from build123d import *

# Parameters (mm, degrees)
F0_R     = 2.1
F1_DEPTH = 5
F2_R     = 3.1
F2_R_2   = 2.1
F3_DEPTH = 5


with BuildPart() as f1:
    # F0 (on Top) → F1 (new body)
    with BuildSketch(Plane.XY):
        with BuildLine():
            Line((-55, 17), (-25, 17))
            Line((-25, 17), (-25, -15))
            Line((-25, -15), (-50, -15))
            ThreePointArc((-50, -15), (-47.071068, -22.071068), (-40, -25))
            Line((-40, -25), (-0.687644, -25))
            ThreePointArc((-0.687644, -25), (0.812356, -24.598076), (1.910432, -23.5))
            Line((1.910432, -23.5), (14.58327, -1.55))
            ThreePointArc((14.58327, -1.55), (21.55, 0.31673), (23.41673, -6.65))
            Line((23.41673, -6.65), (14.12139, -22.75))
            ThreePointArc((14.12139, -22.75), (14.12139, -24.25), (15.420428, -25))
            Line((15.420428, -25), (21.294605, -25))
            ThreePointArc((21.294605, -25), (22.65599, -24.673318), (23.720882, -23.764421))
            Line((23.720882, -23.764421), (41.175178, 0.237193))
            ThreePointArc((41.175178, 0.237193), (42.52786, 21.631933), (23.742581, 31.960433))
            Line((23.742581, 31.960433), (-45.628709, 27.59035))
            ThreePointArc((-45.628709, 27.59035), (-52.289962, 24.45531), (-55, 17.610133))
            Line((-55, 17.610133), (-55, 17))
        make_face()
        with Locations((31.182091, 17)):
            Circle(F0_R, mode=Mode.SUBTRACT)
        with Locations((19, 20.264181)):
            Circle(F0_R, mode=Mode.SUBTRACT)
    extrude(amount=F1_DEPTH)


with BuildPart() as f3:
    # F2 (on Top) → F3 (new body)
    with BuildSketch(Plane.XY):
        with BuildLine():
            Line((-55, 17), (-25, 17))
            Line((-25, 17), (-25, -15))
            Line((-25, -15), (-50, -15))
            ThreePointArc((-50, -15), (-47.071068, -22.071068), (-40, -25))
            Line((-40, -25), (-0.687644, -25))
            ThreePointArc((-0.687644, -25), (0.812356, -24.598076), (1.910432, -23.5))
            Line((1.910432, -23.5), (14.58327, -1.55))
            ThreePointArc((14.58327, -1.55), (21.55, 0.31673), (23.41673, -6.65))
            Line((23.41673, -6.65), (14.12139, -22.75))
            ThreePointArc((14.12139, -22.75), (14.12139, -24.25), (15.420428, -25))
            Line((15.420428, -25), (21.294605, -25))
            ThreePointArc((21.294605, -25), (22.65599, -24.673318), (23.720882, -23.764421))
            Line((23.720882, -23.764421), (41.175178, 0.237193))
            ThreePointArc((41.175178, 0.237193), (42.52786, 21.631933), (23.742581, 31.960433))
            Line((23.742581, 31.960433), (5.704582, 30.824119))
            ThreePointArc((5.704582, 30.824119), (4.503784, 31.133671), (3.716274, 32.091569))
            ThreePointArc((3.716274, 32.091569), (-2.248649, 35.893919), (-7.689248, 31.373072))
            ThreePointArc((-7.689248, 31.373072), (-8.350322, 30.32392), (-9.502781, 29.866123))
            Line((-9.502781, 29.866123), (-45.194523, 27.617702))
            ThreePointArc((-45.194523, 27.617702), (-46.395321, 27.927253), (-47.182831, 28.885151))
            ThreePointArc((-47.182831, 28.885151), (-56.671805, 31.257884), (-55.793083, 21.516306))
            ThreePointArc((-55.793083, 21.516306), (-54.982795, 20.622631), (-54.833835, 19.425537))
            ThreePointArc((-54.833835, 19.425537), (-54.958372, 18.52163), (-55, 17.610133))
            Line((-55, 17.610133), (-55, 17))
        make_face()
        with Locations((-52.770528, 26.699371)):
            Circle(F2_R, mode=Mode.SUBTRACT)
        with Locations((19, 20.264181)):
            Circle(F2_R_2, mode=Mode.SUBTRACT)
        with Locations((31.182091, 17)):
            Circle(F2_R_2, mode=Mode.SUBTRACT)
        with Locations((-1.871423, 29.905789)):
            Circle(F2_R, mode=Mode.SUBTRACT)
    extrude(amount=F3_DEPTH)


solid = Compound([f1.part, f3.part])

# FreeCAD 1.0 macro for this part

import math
import FreeCAD as App
import Part
import Sketcher

V = App.Vector
Q = App.Units.Quantity

doc = App.newDocument("Part")
body = doc.addObject("PartDesign::Body", "Body")

sketch1 = doc.addObject("Sketcher::SketchObject", "Sketch")
body.addObject(sketch1)
sketch1.AttachmentSupport = (doc.XY_Plane, [""])
sketch1.MapMode = "FlatFace"
sketch1.addGeometry(Part.LineSegment(V(-55, 17, 0), V(-25, 17, 0)), False)
sketch1.addGeometry(Part.LineSegment(V(-25, 17, 0), V(-25, -15, 0)), False)
sketch1.addGeometry(Part.LineSegment(V(-25, -15, 0), V(-50, -15, 0)), False)
sketch1.addGeometry(Part.ArcOfCircle(Part.Circle(V(-40.000001, -15.000001, 0), V(0, 0, 1), 9.999999), math.radians(179.999996), math.radians(270.000004)), False)
sketch1.addGeometry(Part.LineSegment(V(-40, -25, 0), V(-0.687644, -25, 0)), False)
sketch1.addGeometry(Part.ArcOfCircle(Part.Circle(V(-0.687644, -22, 0), V(0, 0, 1), 3.000001), math.radians(-89.99999), math.radians(-30.000006)), False)
sketch1.addGeometry(Part.LineSegment(V(1.910432, -23.5, 0), V(14.58327, -1.55, 0)), False)
sketch1.addGeometry(Part.ArcOfCircle(Part.Circle(V(19, -4.1, 0), V(0, 0, 1), 5.1), math.radians(-29.999998), math.radians(150.000002)), False)
sketch1.addGeometry(Part.LineSegment(V(23.41673, -6.65, 0), V(14.12139, -22.75, 0)), False)
sketch1.addGeometry(Part.ArcOfCircle(Part.Circle(V(15.420428, -23.5, 0), V(0, 0, 1), 1.5), math.radians(150), math.radians(269.999996)), False)
sketch1.addGeometry(Part.LineSegment(V(15.420428, -25, 0), V(21.294605, -25, 0)), False)
sketch1.addGeometry(Part.ArcOfCircle(Part.Circle(V(21.294603, -21.999996, 0), V(0, 0, 1), 3.000004), math.radians(-89.999971), math.radians(-36.025186)), False)
sketch1.addGeometry(Part.LineSegment(V(23.720882, -23.764421, 0), V(41.175178, 0.237193, 0)), False)
sketch1.addGeometry(Part.ArcOfCircle(Part.Circle(V(25.000001, 12, 0), V(0, 0, 1), 20), math.radians(-36.025153), math.radians(93.604619)), False)
sketch1.addGeometry(Part.LineSegment(V(23.742581, 31.960433, 0), V(-45.628709, 27.59035, 0)), False)
sketch1.addGeometry(Part.ArcOfCircle(Part.Circle(V(-44.999999, 17.610132, 0), V(0, 0, 1), 10.000001), math.radians(93.604622), math.radians(179.999994)), False)
sketch1.addGeometry(Part.LineSegment(V(-55, 17.610133, 0), V(-55, 17, 0)), False)
sketch1.addGeometry(Part.Circle(V(31.182091, 17, 0), V(0, 0, 1), 2.1), False)
sketch1.addGeometry(Part.Circle(V(19, 20.264181, 0), V(0, 0, 1), 2.1), False)
sketch1.addConstraint(Sketcher.Constraint("Coincident", 0, 2, 1, 1))
sketch1.addConstraint(Sketcher.Constraint("Coincident", 1, 2, 2, 1))
sketch1.addConstraint(Sketcher.Constraint("Coincident", 2, 2, 3, 1))
sketch1.addConstraint(Sketcher.Constraint("Tangent", 3, 2, 4, 1))
sketch1.addConstraint(Sketcher.Constraint("Tangent", 4, 2, 5, 1))
sketch1.addConstraint(Sketcher.Constraint("Tangent", 5, 2, 6, 1))
sketch1.addConstraint(Sketcher.Constraint("Tangent", 6, 2, 7, 2))
sketch1.addConstraint(Sketcher.Constraint("Tangent", 7, 1, 8, 1))
sketch1.addConstraint(Sketcher.Constraint("Tangent", 8, 2, 9, 1))
sketch1.addConstraint(Sketcher.Constraint("Tangent", 9, 2, 10, 1))
sketch1.addConstraint(Sketcher.Constraint("Tangent", 10, 2, 11, 1))
sketch1.addConstraint(Sketcher.Constraint("Tangent", 11, 2, 12, 1))
sketch1.addConstraint(Sketcher.Constraint("Tangent", 12, 2, 13, 1))
sketch1.addConstraint(Sketcher.Constraint("Tangent", 13, 2, 14, 1))
sketch1.addConstraint(Sketcher.Constraint("Tangent", 14, 2, 15, 1))
sketch1.addConstraint(Sketcher.Constraint("Tangent", 15, 2, 16, 1))
sketch1.addConstraint(Sketcher.Constraint("Coincident", 16, 2, 0, 1))
sketch1.addConstraint(Sketcher.Constraint("Horizontal", 0))
sketch1.addConstraint(Sketcher.Constraint("Vertical", 1))
sketch1.addConstraint(Sketcher.Constraint("Horizontal", 2))
sketch1.addConstraint(Sketcher.Constraint("Horizontal", 4))
sketch1.addConstraint(Sketcher.Constraint("Horizontal", 10))
sketch1.addConstraint(Sketcher.Constraint("Vertical", 16))
sketch1.addConstraint(Sketcher.Constraint("Equal", 17, 18))
sketch1.addConstraint(Sketcher.Constraint("Parallel", 6, 8))
sketch1.addConstraint(Sketcher.Constraint("Horizontal", 17, 3, 0, 2))
sketch1.addConstraint(Sketcher.Constraint("Horizontal", 3, 3, 1, 2))
sketch1.addConstraint(Sketcher.Constraint("Horizontal", 9, 3, 5, 2))
sketch1.addConstraint(Sketcher.Constraint("Horizontal", 4, 2, 9, 2))
sketch1.addConstraint(Sketcher.Constraint("Vertical", 7, 3, 18, 3))
sketch1.addConstraint(Sketcher.Constraint("Radius", 3, Q("9.999999 mm")))
sketch1.addConstraint(Sketcher.Constraint("Radius", 5, Q("3.000001 mm")))
sketch1.addConstraint(Sketcher.Constraint("Radius", 13, Q("20 mm")))
sketch1.addConstraint(Sketcher.Constraint("Radius", 15, Q("10.000001 mm")))
sketch1.addConstraint(Sketcher.Constraint("Diameter", 17, Q("4.2 mm")))
sketch1.addConstraint(Sketcher.Constraint("Radius", 7, Q("5.1 mm")))
sketch1.addConstraint(Sketcher.Constraint("Radius", 9, Q("1.5 mm")))
sketch1.addConstraint(Sketcher.Constraint("DistanceX", 0, 1, 0, 2, Q("30 mm")))
sketch1.addConstraint(Sketcher.Constraint("DistanceX", 2, 2, 2, 1, Q("25 mm")))
sketch1.addConstraint(Sketcher.Constraint("DistanceY", 1, 2, 1, 1, Q("32 mm")))
sketch1.addConstraint(Sketcher.Constraint("DistanceX", 3, 3, -1, 1, Q("40.000001 mm")))
sketch1.addConstraint(Sketcher.Constraint("DistanceY", 3, 3, -1, 1, Q("15.000001 mm")))
sketch1.addConstraint(Sketcher.Constraint("DistanceX", -1, 1, 7, 3, Q("19 mm")))
sketch1.addConstraint(Sketcher.Constraint("DistanceX", -1, 1, 13, 3, Q("25.000001 mm")))
sketch1.addConstraint(Sketcher.Constraint("DistanceY", -1, 1, 13, 3, Q("12 mm")))
sketch1.addConstraint(Sketcher.Constraint("DistanceY", 7, 3, -1, 1, Q("4.1 mm")))
sketch1.addConstraint(Sketcher.Constraint("Radius", 11, Q("3.000004 mm")))
sketch1.addConstraint(Sketcher.Constraint("Distance", 14, Q("69.508802 mm")))
sketch1.addConstraint(Sketcher.Constraint("DistanceX", 10, 1, 10, 2, Q("5.874177 mm")))
sketch1.addConstraint(Sketcher.Constraint("DistanceX", -1, 1, 17, 3, Q("31.182091 mm")))
sketch1.addConstraint(Sketcher.Constraint("DistanceY", -1, 1, 18, 3, Q("20.264181 mm")))
pad1 = doc.addObject("PartDesign::Pad", "Pad")
body.addObject(pad1)
pad1.Profile = sketch1
pad1.Length = 5
body2 = doc.addObject("PartDesign::Body", "Body001")

sketch2 = doc.addObject("Sketcher::SketchObject", "Sketch001")
body2.addObject(sketch2)
sketch2.AttachmentSupport = (doc.getObject("XY_Plane001"), [""])
sketch2.MapMode = "FlatFace"
sketch2.addGeometry(Part.LineSegment(V(-55, 17, 0), V(-25, 17, 0)), False)
sketch2.addGeometry(Part.LineSegment(V(-25, 17, 0), V(-25, -15, 0)), False)
sketch2.addGeometry(Part.LineSegment(V(-25, -15, 0), V(-50, -15, 0)), False)
sketch2.addGeometry(Part.ArcOfCircle(Part.Circle(V(-40.000001, -15.000001, 0), V(0, 0, 1), 9.999999), math.radians(179.999996), math.radians(270.000004)), False)
sketch2.addGeometry(Part.LineSegment(V(-40, -25, 0), V(-0.687644, -25, 0)), False)
sketch2.addGeometry(Part.ArcOfCircle(Part.Circle(V(-0.687644, -22, 0), V(0, 0, 1), 3.000001), math.radians(-89.99999), math.radians(-30.000006)), False)
sketch2.addGeometry(Part.LineSegment(V(1.910432, -23.5, 0), V(14.58327, -1.55, 0)), False)
sketch2.addGeometry(Part.ArcOfCircle(Part.Circle(V(19, -4.1, 0), V(0, 0, 1), 5.1), math.radians(-29.999998), math.radians(150.000002)), False)
sketch2.addGeometry(Part.LineSegment(V(23.41673, -6.65, 0), V(14.12139, -22.75, 0)), False)
sketch2.addGeometry(Part.ArcOfCircle(Part.Circle(V(15.420428, -23.5, 0), V(0, 0, 1), 1.5), math.radians(150), math.radians(269.999996)), False)
sketch2.addGeometry(Part.LineSegment(V(15.420428, -25, 0), V(21.294605, -25, 0)), False)
sketch2.addGeometry(Part.ArcOfCircle(Part.Circle(V(21.294603, -21.999996, 0), V(0, 0, 1), 3.000004), math.radians(-89.999971), math.radians(-36.025186)), False)
sketch2.addGeometry(Part.LineSegment(V(23.720882, -23.764421, 0), V(41.175178, 0.237193, 0)), False)
sketch2.addGeometry(Part.ArcOfCircle(Part.Circle(V(25.000001, 12, 0), V(0, 0, 1), 20), math.radians(-36.025153), math.radians(93.604619)), False)
sketch2.addGeometry(Part.LineSegment(V(23.742581, 31.960433, 0), V(5.704582, 30.824119, 0)), False)
sketch2.addGeometry(Part.ArcOfCircle(Part.Circle(V(5.578841, 32.820164, 0), V(0, 0, 1), 2.000002), math.radians(-158.635656), math.radians(-86.395417)), False)
sketch2.addGeometry(Part.ArcOfCircle(Part.Circle(V(-1.871424, 29.905789, 0), V(0, 0, 1), 6), math.radians(21.364304), math.radians(165.844926)), False)
sketch2.addGeometry(Part.ArcOfCircle(Part.Circle(V(-9.628524, 31.862167, 0), V(0, 0, 1), 2.000001), math.radians(-86.395365), math.radians(-14.155095)), False)
sketch2.addGeometry(Part.LineSegment(V(-9.502781, 29.866123, 0), V(-45.194523, 27.617702, 0)), False)
sketch2.addGeometry(Part.ArcOfCircle(Part.Circle(V(-45.320266, 29.613745, 0), V(0, 0, 1), 1.999999), math.radians(-158.63568), math.radians(-86.395352)), False)
sketch2.addGeometry(Part.ArcOfCircle(Part.Circle(V(-52.770529, 26.699371, 0), V(0, 0, 1), 6), math.radians(21.364305), math.radians(239.750988)), False)
sketch2.addGeometry(Part.ArcOfCircle(Part.Circle(V(-56.800602, 19.788618, 0), V(0, 0, 1), 2), math.radians(-10.459495), math.radians(59.750954)), False)
sketch2.addGeometry(Part.ArcOfCircle(Part.Circle(V(-44.999981, 17.610132, 0), V(0, 0, 1), 10.000019), math.radians(169.540517), math.radians(179.999994)), False)
sketch2.addGeometry(Part.LineSegment(V(-55, 17.610133, 0), V(-55, 17, 0)), False)
sketch2.addGeometry(Part.Circle(V(31.182091, 17, 0), V(0, 0, 1), 2.1), False)
sketch2.addGeometry(Part.Circle(V(19, 20.264181, 0), V(0, 0, 1), 2.1), False)
sketch2.addGeometry(Part.Circle(V(-52.770528, 26.699371, 0), V(0, 0, 1), 3.1), False)
sketch2.addGeometry(Part.Circle(V(-1.871423, 29.905789, 0), V(0, 0, 1), 3.1), False)
sketch2.addConstraint(Sketcher.Constraint("Coincident", 0, 2, 1, 1))
sketch2.addConstraint(Sketcher.Constraint("Coincident", 1, 2, 2, 1))
sketch2.addConstraint(Sketcher.Constraint("Coincident", 2, 2, 3, 1))
sketch2.addConstraint(Sketcher.Constraint("Tangent", 3, 2, 4, 1))
sketch2.addConstraint(Sketcher.Constraint("Tangent", 4, 2, 5, 1))
sketch2.addConstraint(Sketcher.Constraint("Tangent", 5, 2, 6, 1))
sketch2.addConstraint(Sketcher.Constraint("Tangent", 6, 2, 7, 2))
sketch2.addConstraint(Sketcher.Constraint("Tangent", 7, 1, 8, 1))
sketch2.addConstraint(Sketcher.Constraint("Tangent", 8, 2, 9, 1))
sketch2.addConstraint(Sketcher.Constraint("Tangent", 9, 2, 10, 1))
sketch2.addConstraint(Sketcher.Constraint("Tangent", 10, 2, 11, 1))
sketch2.addConstraint(Sketcher.Constraint("Tangent", 11, 2, 12, 1))
sketch2.addConstraint(Sketcher.Constraint("Tangent", 12, 2, 13, 1))
sketch2.addConstraint(Sketcher.Constraint("Tangent", 13, 2, 14, 1))
sketch2.addConstraint(Sketcher.Constraint("Tangent", 14, 2, 15, 2))
sketch2.addConstraint(Sketcher.Constraint("Tangent", 15, 1, 16, 1))
sketch2.addConstraint(Sketcher.Constraint("Tangent", 16, 2, 17, 2))
sketch2.addConstraint(Sketcher.Constraint("Tangent", 17, 1, 18, 1))
sketch2.addConstraint(Sketcher.Constraint("Tangent", 18, 2, 19, 2))
sketch2.addConstraint(Sketcher.Constraint("Tangent", 19, 1, 20, 1))
sketch2.addConstraint(Sketcher.Constraint("Tangent", 20, 2, 21, 2))
sketch2.addConstraint(Sketcher.Constraint("Tangent", 21, 1, 22, 1))
sketch2.addConstraint(Sketcher.Constraint("Tangent", 22, 2, 23, 1))
sketch2.addConstraint(Sketcher.Constraint("Coincident", 23, 2, 0, 1))
sketch2.addConstraint(Sketcher.Constraint("Horizontal", 0))
sketch2.addConstraint(Sketcher.Constraint("Vertical", 1))
sketch2.addConstraint(Sketcher.Constraint("Horizontal", 2))
sketch2.addConstraint(Sketcher.Constraint("Horizontal", 4))
sketch2.addConstraint(Sketcher.Constraint("Horizontal", 10))
sketch2.addConstraint(Sketcher.Constraint("Vertical", 23))
sketch2.addConstraint(Sketcher.Constraint("Coincident", 26, 3, 20, 3))
sketch2.addConstraint(Sketcher.Constraint("Coincident", 27, 3, 16, 3))
sketch2.addConstraint(Sketcher.Constraint("Equal", 15, 17))
sketch2.addConstraint(Sketcher.Constraint("Equal", 17, 19))
sketch2.addConstraint(Sketcher.Constraint("Equal", 16, 20))
sketch2.addConstraint(Sketcher.Constraint("Equal", 19, 21))
sketch2.addConstraint(Sketcher.Constraint("Equal", 24, 25))
sketch2.addConstraint(Sketcher.Constraint("Equal", 26, 27))
sketch2.addConstraint(Sketcher.Constraint("Parallel", 6, 8))
sketch2.addConstraint(Sketcher.Constraint("Parallel", 14, 18))
sketch2.addConstraint(Sketcher.Constraint("Horizontal", 24, 3, 0, 2))
sketch2.addConstraint(Sketcher.Constraint("Horizontal", 3, 3, 1, 2))
sketch2.addConstraint(Sketcher.Constraint("Horizontal", 9, 3, 5, 2))
sketch2.addConstraint(Sketcher.Constraint("Horizontal", 4, 2, 9, 2))
sketch2.addConstraint(Sketcher.Constraint("Vertical", 7, 3, 25, 3))
sketch2.addConstraint(Sketcher.Constraint("Radius", 3, Q("9.999999 mm")))
sketch2.addConstraint(Sketcher.Constraint("Radius", 5, Q("3.000001 mm")))
sketch2.addConstraint(Sketcher.Constraint("Radius", 13, Q("20 mm")))
sketch2.addConstraint(Sketcher.Constraint("Radius", 15, Q("2.000002 mm")))
sketch2.addConstraint(Sketcher.Constraint("Radius", 16, Q("6 mm")))
sketch2.addConstraint(Sketcher.Constraint("Diameter", 24, Q("4.2 mm")))
sketch2.addConstraint(Sketcher.Constraint("Diameter", 26, Q("6.2 mm")))
sketch2.addConstraint(Sketcher.Constraint("Radius", 7, Q("5.1 mm")))
sketch2.addConstraint(Sketcher.Constraint("Radius", 9, Q("1.5 mm")))
sketch2.addConstraint(Sketcher.Constraint("DistanceX", 0, 1, 0, 2, Q("30 mm")))
sketch2.addConstraint(Sketcher.Constraint("DistanceX", 2, 2, 2, 1, Q("25 mm")))
sketch2.addConstraint(Sketcher.Constraint("DistanceY", 1, 2, 1, 1, Q("32 mm")))
sketch2.addConstraint(Sketcher.Constraint("DistanceX", 3, 3, -1, 1, Q("40.000001 mm")))
sketch2.addConstraint(Sketcher.Constraint("DistanceY", 3, 3, -1, 1, Q("15.000001 mm")))
sketch2.addConstraint(Sketcher.Constraint("DistanceX", -1, 1, 7, 3, Q("19 mm")))
sketch2.addConstraint(Sketcher.Constraint("DistanceX", -1, 1, 13, 3, Q("25.000001 mm")))
sketch2.addConstraint(Sketcher.Constraint("DistanceY", -1, 1, 13, 3, Q("12 mm")))
sketch2.addConstraint(Sketcher.Constraint("DistanceY", 7, 3, -1, 1, Q("4.1 mm")))
sketch2.addConstraint(Sketcher.Constraint("Radius", 22, Q("10.000019 mm")))
sketch2.addConstraint(Sketcher.Constraint("Radius", 11, Q("3.000004 mm")))
sketch2.addConstraint(Sketcher.Constraint("DistanceX", 17, 3, 16, 3, Q("7.7571 mm")))
sketch2.addConstraint(Sketcher.Constraint("DistanceX", 21, 3, 3, 3, Q("16.800602 mm")))
sketch2.addConstraint(Sketcher.Constraint("DistanceY", 17, 3, 15, 1, Q("0.229402 mm")))
sketch2.addConstraint(Sketcher.Constraint("DistanceX", 20, 2, 22, 3, Q("10.793102 mm")))
sketch2.addConstraint(Sketcher.Constraint("DistanceX", 10, 1, 10, 2, Q("5.874177 mm")))
sketch2.addConstraint(Sketcher.Constraint("DistanceY", 23, 2, 23, 1, Q("0.610133 mm")))
sketch2.addConstraint(Sketcher.Constraint("DistanceX", -1, 1, 15, 3, Q("5.578841 mm")))
sketch2.addConstraint(Sketcher.Constraint("DistanceY", -1, 1, 16, 3, Q("29.905789 mm")))
sketch2.addConstraint(Sketcher.Constraint("DistanceX", -1, 1, 24, 3, Q("31.182091 mm")))
sketch2.addConstraint(Sketcher.Constraint("DistanceY", -1, 1, 25, 3, Q("20.264181 mm")))
pad2 = doc.addObject("PartDesign::Pad", "Pad001")
body2.addObject(pad2)
pad2.Profile = sketch2
pad2.Length = 5

doc.recompute()
